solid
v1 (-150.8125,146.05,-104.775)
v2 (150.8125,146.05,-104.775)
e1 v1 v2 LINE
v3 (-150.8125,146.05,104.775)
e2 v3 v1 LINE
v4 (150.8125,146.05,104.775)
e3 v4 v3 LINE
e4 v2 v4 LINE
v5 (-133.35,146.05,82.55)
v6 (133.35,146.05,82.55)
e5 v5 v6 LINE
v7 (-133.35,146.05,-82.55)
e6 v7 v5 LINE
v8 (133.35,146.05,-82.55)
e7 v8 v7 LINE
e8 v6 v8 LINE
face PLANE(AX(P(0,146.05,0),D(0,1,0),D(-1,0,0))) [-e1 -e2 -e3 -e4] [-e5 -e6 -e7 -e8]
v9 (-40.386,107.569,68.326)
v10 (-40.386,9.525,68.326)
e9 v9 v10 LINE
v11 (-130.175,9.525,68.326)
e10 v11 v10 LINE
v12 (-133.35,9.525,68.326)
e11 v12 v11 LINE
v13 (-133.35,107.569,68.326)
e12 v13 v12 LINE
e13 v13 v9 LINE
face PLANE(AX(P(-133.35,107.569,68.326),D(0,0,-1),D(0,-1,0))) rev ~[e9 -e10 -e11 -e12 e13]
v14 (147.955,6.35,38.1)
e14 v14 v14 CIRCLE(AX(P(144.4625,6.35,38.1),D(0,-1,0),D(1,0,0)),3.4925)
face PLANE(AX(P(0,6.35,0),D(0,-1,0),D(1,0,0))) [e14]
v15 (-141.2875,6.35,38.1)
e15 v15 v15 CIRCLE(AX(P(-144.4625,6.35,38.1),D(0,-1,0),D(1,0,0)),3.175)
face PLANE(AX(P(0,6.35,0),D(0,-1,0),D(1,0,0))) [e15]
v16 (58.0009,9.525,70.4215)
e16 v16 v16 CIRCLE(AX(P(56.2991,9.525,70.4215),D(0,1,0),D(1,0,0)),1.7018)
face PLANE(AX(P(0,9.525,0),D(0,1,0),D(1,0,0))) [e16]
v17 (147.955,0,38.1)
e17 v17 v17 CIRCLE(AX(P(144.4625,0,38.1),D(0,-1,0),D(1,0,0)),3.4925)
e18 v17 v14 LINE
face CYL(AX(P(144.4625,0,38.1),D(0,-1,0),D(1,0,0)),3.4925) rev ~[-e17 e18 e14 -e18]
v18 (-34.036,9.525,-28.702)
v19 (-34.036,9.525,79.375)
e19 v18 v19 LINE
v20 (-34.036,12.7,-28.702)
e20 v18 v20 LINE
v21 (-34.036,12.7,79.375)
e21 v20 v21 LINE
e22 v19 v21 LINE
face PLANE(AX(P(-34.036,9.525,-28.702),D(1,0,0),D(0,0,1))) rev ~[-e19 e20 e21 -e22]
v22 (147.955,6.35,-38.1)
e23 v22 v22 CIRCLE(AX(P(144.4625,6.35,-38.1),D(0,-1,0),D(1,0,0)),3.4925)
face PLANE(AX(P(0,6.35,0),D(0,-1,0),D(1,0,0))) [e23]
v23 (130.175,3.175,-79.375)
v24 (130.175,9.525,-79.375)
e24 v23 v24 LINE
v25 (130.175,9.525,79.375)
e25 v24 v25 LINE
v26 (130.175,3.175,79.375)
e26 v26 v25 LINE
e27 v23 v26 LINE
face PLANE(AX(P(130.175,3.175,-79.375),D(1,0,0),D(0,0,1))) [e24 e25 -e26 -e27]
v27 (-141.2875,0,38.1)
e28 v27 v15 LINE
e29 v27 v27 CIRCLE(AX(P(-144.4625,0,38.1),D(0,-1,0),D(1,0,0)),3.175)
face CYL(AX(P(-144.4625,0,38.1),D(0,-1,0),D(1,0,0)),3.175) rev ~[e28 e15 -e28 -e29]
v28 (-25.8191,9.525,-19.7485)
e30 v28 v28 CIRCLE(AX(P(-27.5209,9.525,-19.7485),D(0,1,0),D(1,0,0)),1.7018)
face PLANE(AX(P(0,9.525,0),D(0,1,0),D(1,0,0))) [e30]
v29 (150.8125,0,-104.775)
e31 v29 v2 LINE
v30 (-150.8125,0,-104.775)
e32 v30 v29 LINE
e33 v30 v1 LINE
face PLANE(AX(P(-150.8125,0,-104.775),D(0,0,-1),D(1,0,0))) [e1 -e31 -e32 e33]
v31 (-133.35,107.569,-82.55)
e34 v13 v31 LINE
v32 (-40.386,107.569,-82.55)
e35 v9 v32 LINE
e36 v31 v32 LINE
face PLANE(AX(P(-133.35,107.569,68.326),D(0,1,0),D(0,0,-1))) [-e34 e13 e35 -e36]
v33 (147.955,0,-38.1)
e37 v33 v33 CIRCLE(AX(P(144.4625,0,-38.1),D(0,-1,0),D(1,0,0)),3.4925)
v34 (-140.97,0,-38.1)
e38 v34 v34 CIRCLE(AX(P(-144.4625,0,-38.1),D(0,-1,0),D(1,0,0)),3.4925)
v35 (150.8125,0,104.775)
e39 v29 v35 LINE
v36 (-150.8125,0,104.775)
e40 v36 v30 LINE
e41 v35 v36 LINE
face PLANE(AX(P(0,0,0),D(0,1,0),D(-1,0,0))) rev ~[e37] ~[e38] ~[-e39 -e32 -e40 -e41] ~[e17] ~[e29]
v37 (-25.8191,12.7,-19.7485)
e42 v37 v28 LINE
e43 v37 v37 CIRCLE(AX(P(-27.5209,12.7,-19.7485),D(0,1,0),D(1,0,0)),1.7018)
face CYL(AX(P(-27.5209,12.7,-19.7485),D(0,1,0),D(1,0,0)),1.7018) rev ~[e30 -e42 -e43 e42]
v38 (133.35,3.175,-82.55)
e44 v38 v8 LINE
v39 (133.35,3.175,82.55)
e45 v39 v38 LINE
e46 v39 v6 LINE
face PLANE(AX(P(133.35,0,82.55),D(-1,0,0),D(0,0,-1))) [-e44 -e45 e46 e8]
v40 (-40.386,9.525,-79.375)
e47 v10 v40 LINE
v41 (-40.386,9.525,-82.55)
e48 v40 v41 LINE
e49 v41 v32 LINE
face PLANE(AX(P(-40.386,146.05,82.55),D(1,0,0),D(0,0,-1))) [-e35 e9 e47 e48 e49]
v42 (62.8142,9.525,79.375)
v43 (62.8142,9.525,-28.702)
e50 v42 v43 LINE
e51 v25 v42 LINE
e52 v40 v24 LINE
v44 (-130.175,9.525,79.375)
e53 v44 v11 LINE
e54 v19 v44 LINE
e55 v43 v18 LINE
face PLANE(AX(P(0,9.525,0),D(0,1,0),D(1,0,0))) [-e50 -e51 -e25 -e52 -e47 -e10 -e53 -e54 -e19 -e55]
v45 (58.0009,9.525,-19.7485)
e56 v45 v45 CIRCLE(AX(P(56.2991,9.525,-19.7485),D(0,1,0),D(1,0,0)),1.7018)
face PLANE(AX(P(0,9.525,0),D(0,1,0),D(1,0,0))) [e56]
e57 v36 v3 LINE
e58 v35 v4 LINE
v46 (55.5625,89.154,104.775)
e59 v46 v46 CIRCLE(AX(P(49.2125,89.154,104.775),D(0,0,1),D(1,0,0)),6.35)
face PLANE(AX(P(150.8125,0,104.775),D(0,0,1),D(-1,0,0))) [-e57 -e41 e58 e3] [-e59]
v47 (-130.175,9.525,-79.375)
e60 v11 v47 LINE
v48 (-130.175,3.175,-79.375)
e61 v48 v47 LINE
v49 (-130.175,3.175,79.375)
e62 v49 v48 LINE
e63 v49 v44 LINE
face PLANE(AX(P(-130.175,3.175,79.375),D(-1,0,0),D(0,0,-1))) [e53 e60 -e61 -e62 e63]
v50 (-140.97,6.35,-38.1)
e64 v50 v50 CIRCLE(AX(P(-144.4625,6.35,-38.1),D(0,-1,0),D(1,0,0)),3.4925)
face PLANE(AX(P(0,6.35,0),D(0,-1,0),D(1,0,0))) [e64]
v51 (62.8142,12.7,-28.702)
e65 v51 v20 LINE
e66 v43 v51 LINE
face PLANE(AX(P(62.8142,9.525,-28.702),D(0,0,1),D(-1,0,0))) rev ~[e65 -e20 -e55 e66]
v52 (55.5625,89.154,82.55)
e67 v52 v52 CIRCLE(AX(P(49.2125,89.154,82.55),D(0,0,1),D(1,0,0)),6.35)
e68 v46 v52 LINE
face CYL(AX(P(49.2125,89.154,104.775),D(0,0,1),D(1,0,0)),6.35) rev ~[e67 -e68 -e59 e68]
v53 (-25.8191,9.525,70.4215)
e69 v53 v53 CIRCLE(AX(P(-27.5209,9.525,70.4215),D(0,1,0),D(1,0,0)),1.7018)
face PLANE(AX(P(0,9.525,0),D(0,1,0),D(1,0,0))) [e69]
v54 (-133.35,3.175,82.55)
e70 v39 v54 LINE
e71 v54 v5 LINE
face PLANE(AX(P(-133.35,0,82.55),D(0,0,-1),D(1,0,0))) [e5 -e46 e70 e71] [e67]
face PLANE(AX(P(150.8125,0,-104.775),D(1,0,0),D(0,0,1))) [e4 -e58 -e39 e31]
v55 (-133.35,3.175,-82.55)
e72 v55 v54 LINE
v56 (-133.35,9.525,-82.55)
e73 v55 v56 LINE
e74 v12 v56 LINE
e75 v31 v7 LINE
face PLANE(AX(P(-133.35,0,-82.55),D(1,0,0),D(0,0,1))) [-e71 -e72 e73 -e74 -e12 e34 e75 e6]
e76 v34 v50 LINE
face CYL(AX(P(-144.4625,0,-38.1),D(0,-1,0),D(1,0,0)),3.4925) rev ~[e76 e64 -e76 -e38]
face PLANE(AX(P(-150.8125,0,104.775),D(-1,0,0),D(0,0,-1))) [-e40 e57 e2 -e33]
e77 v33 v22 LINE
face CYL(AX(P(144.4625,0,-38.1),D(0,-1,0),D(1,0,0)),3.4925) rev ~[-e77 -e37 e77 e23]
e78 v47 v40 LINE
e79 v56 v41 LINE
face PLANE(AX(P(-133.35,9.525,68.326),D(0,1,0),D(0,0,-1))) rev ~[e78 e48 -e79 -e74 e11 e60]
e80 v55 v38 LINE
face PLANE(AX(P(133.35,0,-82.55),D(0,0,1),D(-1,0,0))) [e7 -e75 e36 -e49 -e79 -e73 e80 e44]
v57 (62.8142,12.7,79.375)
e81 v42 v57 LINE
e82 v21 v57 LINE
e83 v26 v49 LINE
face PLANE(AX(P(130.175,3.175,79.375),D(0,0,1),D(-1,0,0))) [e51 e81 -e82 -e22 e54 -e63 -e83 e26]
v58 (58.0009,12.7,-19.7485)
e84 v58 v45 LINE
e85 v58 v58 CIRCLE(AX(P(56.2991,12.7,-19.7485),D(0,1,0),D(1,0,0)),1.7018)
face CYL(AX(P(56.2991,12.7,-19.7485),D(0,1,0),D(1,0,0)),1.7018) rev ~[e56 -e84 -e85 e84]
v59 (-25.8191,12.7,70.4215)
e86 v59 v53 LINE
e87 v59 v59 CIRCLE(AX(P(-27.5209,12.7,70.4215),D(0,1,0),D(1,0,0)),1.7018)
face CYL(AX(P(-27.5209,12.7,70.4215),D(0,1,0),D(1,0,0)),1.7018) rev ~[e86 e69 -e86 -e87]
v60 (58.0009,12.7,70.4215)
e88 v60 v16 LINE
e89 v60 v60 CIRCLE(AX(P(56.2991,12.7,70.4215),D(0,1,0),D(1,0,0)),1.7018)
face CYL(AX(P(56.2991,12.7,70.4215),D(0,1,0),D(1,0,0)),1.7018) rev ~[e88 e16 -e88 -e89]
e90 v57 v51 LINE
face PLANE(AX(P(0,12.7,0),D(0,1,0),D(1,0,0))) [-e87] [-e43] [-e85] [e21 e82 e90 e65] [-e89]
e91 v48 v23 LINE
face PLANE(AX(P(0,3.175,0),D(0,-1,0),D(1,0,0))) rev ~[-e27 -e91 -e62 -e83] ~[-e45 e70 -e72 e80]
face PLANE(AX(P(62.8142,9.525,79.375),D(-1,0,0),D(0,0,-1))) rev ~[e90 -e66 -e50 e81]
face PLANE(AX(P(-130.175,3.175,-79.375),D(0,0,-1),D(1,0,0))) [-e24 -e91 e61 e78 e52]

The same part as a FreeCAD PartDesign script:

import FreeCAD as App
import Part
import Sketcher
from FreeCAD import Vector
Q = App.Units.Quantity

doc = App.newDocument("Part")
body = doc.addObject("PartDesign::Body", "Body")

sketch1 = body.newObject("Sketcher::SketchObject", "Sketch")
sketch1.AttachmentSupport = (doc.getObject("XZ_Plane"), [""])
sketch1.MapMode = "FlatFace"
sketch1.addGeometry([
    Part.LineSegment(Vector(-151, 105, 0), Vector(151, 105, 0)),
    Part.LineSegment(Vector(151, 105, 0), Vector(151, -105, 0)),
    Part.LineSegment(Vector(151, -105, 0), Vector(-151, -105, 0)),
    Part.LineSegment(Vector(-151, -105, 0), Vector(-151, 105, 0)),
    Part.LineSegment(Vector(133, 83, 0), Vector(-133, 83, 0)),
    Part.LineSegment(Vector(-133, 83, 0), Vector(-133, -83, 0)),
    Part.LineSegment(Vector(-133, -83, 0), Vector(133, -83, 0)),
    Part.LineSegment(Vector(133, -83, 0), Vector(133, 83, 0)),
], False)
sketch1.addConstraint([
    Sketcher.Constraint("Coincident", 0, 2, 1, 1),
    Sketcher.Constraint("Coincident", 1, 2, 2, 1),
    Sketcher.Constraint("Coincident", 2, 2, 3, 1),
    Sketcher.Constraint("Coincident", 3, 2, 0, 1),
    Sketcher.Constraint("Coincident", 4, 2, 5, 1),
    Sketcher.Constraint("Coincident", 5, 2, 6, 1),
    Sketcher.Constraint("Coincident", 6, 2, 7, 1),
    Sketcher.Constraint("Coincident", 7, 2, 4, 1),
    Sketcher.Constraint("Horizontal", 0),
    Sketcher.Constraint("Vertical", 1),
    Sketcher.Constraint("Horizontal", 2),
    Sketcher.Constraint("Vertical", 3),
    Sketcher.Constraint("Horizontal", 4),
    Sketcher.Constraint("Vertical", 5),
    Sketcher.Constraint("Horizontal", 6),
    Sketcher.Constraint("Vertical", 7),
    Sketcher.Constraint("Symmetric", 0, 2, 2, 2, -1, 1),
    Sketcher.Constraint("Symmetric", 4, 2, 6, 2, -1, 1),
    Sketcher.Constraint("DistanceX", 4, 2, 4, 1, Q("10.5 in")),
    Sketcher.Constraint("DistanceY", 5, 2, 5, 1, Q("6.5 in")),
    Sketcher.Constraint("DistanceY", 1, 2, 1, 1, Q("8.25 in")),
    Sketcher.Constraint("DistanceX", 0, 1, 0, 2, Q("11.875 in")),
])
pad1 = body.newObject("PartDesign::Pad", "Pad")
pad1.Profile = sketch1
pad1.Length = Q("5.75 in")
pad1.Reversed = True

sketch2 = body.newObject("Sketcher::SketchObject", "Sketch001")
sketch2.AttachmentSupport = (doc.getObject("XZ_Plane"), [""])
sketch2.MapMode = "FlatFace"
sketch2.addGeometry([
    Part.LineSegment(Vector(133, -83, 0), Vector(133, 83, 0)),
    Part.LineSegment(Vector(133, 83, 0), Vector(-133, 83, 0)),
    Part.LineSegment(Vector(-133, 83, 0), Vector(-133, -83, 0)),
    Part.LineSegment(Vector(-133, -83, 0), Vector(133, -83, 0)),
], False)
sketch2.addConstraint([
    Sketcher.Constraint("Coincident", 0, 2, 1, 1),
    Sketcher.Constraint("Coincident", 1, 2, 2, 1),
    Sketcher.Constraint("Coincident", 2, 2, 3, 1),
    Sketcher.Constraint("Coincident", 3, 2, 0, 1),
    Sketcher.Constraint("Vertical", 0),
    Sketcher.Constraint("Horizontal", 1),
    Sketcher.Constraint("Vertical", 2),
    Sketcher.Constraint("Horizontal", 3),
    Sketcher.Constraint("Symmetric", 0, 2, 2, 2, -1, 1),
    Sketcher.Constraint("DistanceX", 1, 2, 1, 1, Q("10.5 in")),
    Sketcher.Constraint("DistanceY", 0, 1, 0, 2, Q("6.5 in")),
])
pad2 = body.newObject("PartDesign::Pad", "Pad001")
pad2.Profile = sketch2
pad2.Length = Q("0.125 in")
pad2.Reversed = True

sketch3 = body.newObject("Sketcher::SketchObject", "Sketch002")
sketch3.AttachmentSupport = (doc.getObject("XZ_Plane"), [""])
sketch3.MapMode = "FlatFace"
sketch3.AttachmentOffset = App.Placement(Vector(0, 0, -0.125 * 25.4), App.Rotation())
sketch3.addGeometry([
    Part.LineSegment(Vector(-130, 79, 0), Vector(130, 79, 0)),
    Part.LineSegment(Vector(130, 79, 0), Vector(130, -79, 0)),
    Part.LineSegment(Vector(130, -79, 0), Vector(-130, -79, 0)),
    Part.LineSegment(Vector(-130, -79, 0), Vector(-130, 79, 0)),
], False)
sketch3.addConstraint([
    Sketcher.Constraint("Coincident", 0, 2, 1, 1),
    Sketcher.Constraint("Coincident", 1, 2, 2, 1),
    Sketcher.Constraint("Coincident", 2, 2, 3, 1),
    Sketcher.Constraint("Coincident", 3, 2, 0, 1),
    Sketcher.Constraint("Horizontal", 0),
    Sketcher.Constraint("Vertical", 1),
    Sketcher.Constraint("Horizontal", 2),
    Sketcher.Constraint("Vertical", 3),
    Sketcher.Constraint("Symmetric", 0, 2, 2, 2, -1, 1),
    Sketcher.Constraint("DistanceX", 0, 1, 0, 2, Q("10.25 in")),
    Sketcher.Constraint("DistanceY", 1, 2, 1, 1, Q("6.25 in")),
])
pad3 = body.newObject("PartDesign::Pad", "Pad002")
pad3.Profile = sketch3
pad3.Length = Q("0.25 in")
pad3.Reversed = True

sketch4 = body.newObject("Sketcher::SketchObject", "Sketch003")
sketch4.AttachmentSupport = (doc.getObject("YZ_Plane"), [""])
sketch4.MapMode = "FlatFace"
sketch4.AttachmentOffset = App.Placement(Vector(0, 0, -5.25 * 25.4), App.Rotation())
sketch4.addGeometry([
    Part.LineSegment(Vector(108, -83, 0), Vector(108, 68, 0)),
    Part.LineSegment(Vector(108, 68, 0), Vector(10, 68, 0)),
    Part.LineSegment(Vector(10, 68, 0), Vector(10, -83, 0)),
    Part.LineSegment(Vector(10, -83, 0), Vector(108, -83, 0)),
], False)
sketch4.addConstraint([
    Sketcher.Constraint("Coincident", 0, 2, 1, 1),
    Sketcher.Constraint("Coincident", 1, 2, 2, 1),
    Sketcher.Constraint("Coincident", 2, 2, 3, 1),
    Sketcher.Constraint("Coincident", 3, 2, 0, 1),
    Sketcher.Constraint("Vertical", 0),
    Sketcher.Constraint("Horizontal", 1),
    Sketcher.Constraint("Vertical", 2),
    Sketcher.Constraint("Horizontal", 3),
    Sketcher.Constraint("DistanceX", 1, 2, 1, 1, Q("3.86 in")),
    Sketcher.Constraint("DistanceY", 0, 1, 0, 2, Q("5.94 in")),
    Sketcher.Constraint("DistanceY", -1, 1, 0, 2, Q("2.69 in")),
    Sketcher.Constraint("DistanceX", -1, 1, 0, 2, Q("4.235 in")),
])
pad4 = body.newObject("PartDesign::Pad", "Pad003")
pad4.Profile = sketch4
pad4.Length = Q("3.66 in")

sketch5 = body.newObject("Sketcher::SketchObject", "Sketch004")
sketch5.AttachmentSupport = (doc.getObject("XZ_Plane"), [""])
sketch5.MapMode = "FlatFace"
sketch5.AttachmentOffset = App.Placement(Vector(0, 0, -0.375 * 25.4), App.Rotation())
sketch5.addGeometry([
    Part.LineSegment(Vector(63, 79, 0), Vector(63, -29, 0)),
    Part.LineSegment(Vector(63, -29, 0), Vector(-34, -29, 0)),
    Part.LineSegment(Vector(-34, -29, 0), Vector(-34, 79, 0)),
    Part.LineSegment(Vector(-34, 79, 0), Vector(63, 79, 0)),
], False)
sketch5.addConstraint([
    Sketcher.Constraint("Coincident", 0, 2, 1, 1),
    Sketcher.Constraint("Coincident", 1, 2, 2, 1),
    Sketcher.Constraint("Coincident", 2, 2, 3, 1),
    Sketcher.Constraint("Coincident", 3, 2, 0, 1),
    Sketcher.Constraint("Vertical", 0),
    Sketcher.Constraint("Horizontal", 1),
    Sketcher.Constraint("Vertical", 2),
    Sketcher.Constraint("Horizontal", 3),
    Sketcher.Constraint("DistanceX", 1, 2, 1, 1, Q("3.813 in")),
    Sketcher.Constraint("DistanceY", 0, 2, 0, 1, Q("4.255 in")),
    Sketcher.Constraint("DistanceY", 0, 2, -1, 1, Q("1.13 in")),
    Sketcher.Constraint("DistanceX", 1, 2, -1, 1, Q("1.34 in")),
])
pad5 = body.newObject("PartDesign::Pad", "Pad004")
pad5.Profile = sketch5
pad5.Length = Q("0.125 in")
pad5.Reversed = True

sketch6 = body.newObject("Sketcher::SketchObject", "Sketch005")
sketch6.AttachmentSupport = (doc.getObject("XZ_Plane"), [""])
sketch6.MapMode = "FlatFace"
sketch6.addGeometry([
    Part.Circle(Vector(144.5, 38.1, 0), Vector(0, 0, 1), 3.5),
    Part.Circle(Vector(144.5, -38.1, 0), Vector(0, 0, 1), 3.5),
    Part.Circle(Vector(-144.5, 38.1, 0), Vector(0, 0, 1), 3.2),
    Part.Circle(Vector(-144.5, -38.1, 0), Vector(0, 0, 1), 3.5),
], False)
sketch6.addConstraint([
    Sketcher.Constraint("Equal", 0, 1),
    Sketcher.Constraint("Equal", 1, 3),
    Sketcher.Constraint("Symmetric", 1, 3, 2, 3, -1, 1),
    Sketcher.Constraint("Symmetric", 0, 3, 3, 3, -1, 1),
    Sketcher.Constraint("Symmetric", 0, 3, 2, 3, -2),
    Sketcher.Constraint("Diameter", 2, Q("0.25 in")),
    Sketcher.Constraint("Diameter", 0, Q("0.275 in")),
    Sketcher.Constraint("DistanceY", 1, 3, 0, 3, Q("3 in")),
    Sketcher.Constraint("DistanceX", -1, 1, 0, 3, Q("5.6875 in")),
])
pocket1 = body.newObject("PartDesign::Pocket", "Pocket")
pocket1.Profile = sketch6
pocket1.Length = Q("0.25 in")

sketch7 = body.newObject("Sketcher::SketchObject", "Sketch006")
sketch7.AttachmentSupport = (doc.getObject("XZ_Plane"), [""])
sketch7.MapMode = "FlatFace"
sketch7.AttachmentOffset = App.Placement(Vector(0, 0, -0.5 * 25.4), App.Rotation())
sketch7.addGeometry([
    Part.Circle(Vector(56.3, -19.7, 0), Vector(0, 0, 1), 1.7),
    Part.Circle(Vector(56.3, 70.4, 0), Vector(0, 0, 1), 1.7),
    Part.Circle(Vector(-27.5, -19.7, 0), Vector(0, 0, 1), 1.7),
    Part.Circle(Vector(-27.5, 70.4, 0), Vector(0, 0, 1), 1.7),
], False)
sketch7.addConstraint([
    Sketcher.Constraint("Equal", 0, 1),
    Sketcher.Constraint("Equal", 1, 2),
    Sketcher.Constraint("Equal", 2, 3),
    Sketcher.Constraint("Horizontal", 0, 3, 2, 3),
    Sketcher.Constraint("Horizontal", 1, 3, 3, 3),
    Sketcher.Constraint("Vertical", 0, 3, 1, 3),
    Sketcher.Constraint("Vertical", 2, 3, 3, 3),
    Sketcher.Constraint("Diameter", 0, Q("0.134 in")),
    Sketcher.Constraint("DistanceX", 2, 3, 0, 3, Q("3.3 in")),
    Sketcher.Constraint("DistanceY", 0, 3, 1, 3, Q("3.55 in")),
    Sketcher.Constraint("DistanceX", -1, 1, 0, 3, Q("2.2165 in")),
    Sketcher.Constraint("DistanceY", 0, 3, -1, 1, Q("0.7775 in")),
])
pocket2 = body.newObject("PartDesign::Pocket", "Pocket001")
pocket2.Profile = sketch7
pocket2.Length = Q("0.125 in")
pocket2.Reversed = True

sketch8 = body.newObject("Sketcher::SketchObject", "Sketch007")
sketch8.AttachmentSupport = (doc.getObject("XY_Plane"), [""])
sketch8.MapMode = "FlatFace"
sketch8.AttachmentOffset = App.Placement(Vector(0, 0, 4.125 * 25.4), App.Rotation())
sketch8.addGeometry(Part.Circle(Vector(49, 89, 0), Vector(0, 0, 1), 6), False)
sketch8.addConstraint([
    Sketcher.Constraint("Diameter", 0, Q("0.5 in")),
    Sketcher.Constraint("DistanceY", -1, 1, 0, 3, Q("3.51 in")),
    Sketcher.Constraint("DistanceX", -1, 1, 0, 3, Q("1.9375 in")),
])
pocket3 = body.newObject("PartDesign::Pocket", "Pocket002")
pocket3.Profile = sketch8
pocket3.Length = Q("0.875 in")

doc.recompute()
